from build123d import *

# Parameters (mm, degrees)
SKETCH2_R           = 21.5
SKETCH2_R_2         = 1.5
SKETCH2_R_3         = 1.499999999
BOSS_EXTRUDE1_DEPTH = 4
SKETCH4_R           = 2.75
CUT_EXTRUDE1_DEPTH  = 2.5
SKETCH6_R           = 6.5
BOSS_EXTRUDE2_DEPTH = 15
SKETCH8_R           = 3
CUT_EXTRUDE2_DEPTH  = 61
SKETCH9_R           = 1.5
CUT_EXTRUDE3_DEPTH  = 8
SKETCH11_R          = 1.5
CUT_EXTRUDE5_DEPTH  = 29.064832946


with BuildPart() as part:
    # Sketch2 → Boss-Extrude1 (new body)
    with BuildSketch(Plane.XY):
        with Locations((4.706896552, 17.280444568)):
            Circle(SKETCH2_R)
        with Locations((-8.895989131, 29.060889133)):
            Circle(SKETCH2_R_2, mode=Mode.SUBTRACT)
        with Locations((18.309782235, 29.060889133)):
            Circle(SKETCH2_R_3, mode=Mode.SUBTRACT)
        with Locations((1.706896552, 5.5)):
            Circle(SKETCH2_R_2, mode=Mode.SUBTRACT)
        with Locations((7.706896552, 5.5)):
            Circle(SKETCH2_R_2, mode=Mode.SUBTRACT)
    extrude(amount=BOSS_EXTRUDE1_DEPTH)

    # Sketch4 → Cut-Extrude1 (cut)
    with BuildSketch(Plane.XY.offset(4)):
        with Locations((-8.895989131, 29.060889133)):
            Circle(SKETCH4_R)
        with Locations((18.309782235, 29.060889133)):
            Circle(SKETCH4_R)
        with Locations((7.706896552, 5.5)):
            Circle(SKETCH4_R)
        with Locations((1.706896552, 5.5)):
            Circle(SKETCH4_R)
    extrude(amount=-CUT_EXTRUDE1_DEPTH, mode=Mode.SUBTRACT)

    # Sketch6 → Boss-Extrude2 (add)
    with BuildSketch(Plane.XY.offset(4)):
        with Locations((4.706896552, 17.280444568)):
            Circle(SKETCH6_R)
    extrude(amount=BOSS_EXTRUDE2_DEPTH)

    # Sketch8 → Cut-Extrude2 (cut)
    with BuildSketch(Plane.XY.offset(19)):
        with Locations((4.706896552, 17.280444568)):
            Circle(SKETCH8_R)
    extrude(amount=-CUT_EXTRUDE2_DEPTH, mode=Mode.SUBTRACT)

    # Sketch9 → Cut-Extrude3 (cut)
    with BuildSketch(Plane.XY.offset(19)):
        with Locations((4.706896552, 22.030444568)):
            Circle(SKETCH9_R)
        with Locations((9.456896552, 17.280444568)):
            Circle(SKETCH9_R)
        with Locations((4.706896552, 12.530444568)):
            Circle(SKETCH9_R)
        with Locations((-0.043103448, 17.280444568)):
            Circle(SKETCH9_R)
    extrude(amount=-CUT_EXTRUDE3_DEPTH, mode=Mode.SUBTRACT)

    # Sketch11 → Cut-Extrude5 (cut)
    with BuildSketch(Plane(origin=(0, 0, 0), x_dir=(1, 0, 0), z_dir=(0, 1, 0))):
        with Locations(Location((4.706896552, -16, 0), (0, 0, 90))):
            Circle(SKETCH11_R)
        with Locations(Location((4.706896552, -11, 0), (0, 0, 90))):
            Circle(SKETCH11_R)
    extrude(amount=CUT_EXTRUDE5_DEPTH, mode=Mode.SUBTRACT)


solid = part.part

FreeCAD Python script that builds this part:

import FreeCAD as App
import Part
import Sketcher

V = App.Vector

doc = App.newDocument("Part")
params = doc.addObject("Spreadsheet::Sheet", "Params")
for row, (alias, value) in enumerate([
    ("sketch1_diameter", "43 mm"),
    ("sketch1_diameter2", "3 mm"),
    ("pad1_length", "4 mm"),
    ("sketch2_diameter", "5.5 mm"),
    ("pocket1_length", "2.5 mm"),
    ("sketch3_diameter", "13 mm"),
    ("pad2_length", "15 mm"),
    ("sketch4_diameter", "6 mm"),
    ("pocket2_length", "61 mm"),
    ("sketch5_diameter", "3 mm"),
    ("pocket3_length", "8 mm"),
    ("sketch6_diameter", "3 mm"),
    ("pocket4_length", "29.064833 mm"),
], start=1):
    params.set(f"A{row}", alias)
    params.set(f"B{row}", "=" + value)
    params.setAlias(f"B{row}", alias)

body = doc.addObject("PartDesign::Body", "Body")

# Sketch on XY plane
sketch1 = body.newObject("Sketcher::SketchObject", "Sketch")
sketch1.AttachmentSupport = (doc.getObject("XY_Plane"), [""])
sketch1.MapMode = "FlatFace"
sketch1.addGeometry(Part.Circle(V(4.7, 17.3, 0), V(0, 0, 1), 21.5), False)
sketch1.addGeometry(Part.Circle(V(1.7, 5.5, 0), V(0, 0, 1), 1.5), False)
sketch1.addGeometry(Part.Circle(V(7.7, 5.5, 0), V(0, 0, 1), 1.5), False)
sketch1.addGeometry(Part.Circle(V(-8.9, 29.1, 0), V(0, 0, 1), 1.5), False)
sketch1.addGeometry(Part.Circle(V(18.3, 29.1, 0), V(0, 0, 1), 1.5), False)
sketch1.addConstraint(Sketcher.Constraint("Equal", 1, 2))
sketch1.addConstraint(Sketcher.Constraint("Equal", 2, 3))
sketch1.addConstraint(Sketcher.Constraint("Equal", 3, 4))
sketch1.addConstraint(Sketcher.Constraint("Horizontal", 1, 3, 2, 3))
sketch1.addConstraint(Sketcher.Constraint("Horizontal", 3, 3, 4, 3))
sketch1.addConstraint(Sketcher.Constraint("Diameter", 0, 43.0))
sketch1.addConstraint(Sketcher.Constraint("Diameter", 1, 3.0))
sketch1.addConstraint(Sketcher.Constraint("DistanceX", 1, 3, 0, 3, 3.0))
sketch1.addConstraint(Sketcher.Constraint("DistanceX", 1, 3, 2, 3, 6.0))
sketch1.addConstraint(Sketcher.Constraint("DistanceY", -1, 1, 1, 3, 5.5))
sketch1.addConstraint(Sketcher.Constraint("DistanceX", 3, 3, -1, 1, 8.895989))
sketch1.addConstraint(Sketcher.Constraint("DistanceY", -1, 1, 3, 3, 29.060889))
sketch1.addConstraint(Sketcher.Constraint("DistanceX", 3, 3, 4, 3, 27.205771))
sketch1.addConstraint(Sketcher.Constraint("DistanceX", -1, 1, 0, 3, 4.706897))
sketch1.addConstraint(Sketcher.Constraint("DistanceY", -1, 1, 0, 3, 17.280445))
sketch1.setExpression("Constraints[5]", "Params.sketch1_diameter")
sketch1.setExpression("Constraints[6]", "Params.sketch1_diameter2")
pad1 = body.newObject("PartDesign::Pad", "Pad")
pad1.Profile = sketch1
pad1.setExpression("Length", "Params.pad1_length")

# Sketch on XY plane
sketch2 = body.newObject("Sketcher::SketchObject", "Sketch001")
sketch2.AttachmentSupport = (doc.getObject("XY_Plane"), [""])
sketch2.MapMode = "FlatFace"
sketch2.AttachmentOffset = App.Placement(V(0, 0, 4), App.Rotation())
sketch2.addGeometry(Part.Circle(V(-8.9, 29.1, 0), V(0, 0, 1), 2.8), False)
sketch2.addGeometry(Part.Circle(V(18.3, 29.1, 0), V(0, 0, 1), 2.8), False)
sketch2.addGeometry(Part.Circle(V(7.7, 5.5, 0), V(0, 0, 1), 2.8), False)
sketch2.addGeometry(Part.Circle(V(1.7, 5.5, 0), V(0, 0, 1), 2.8), False)
sketch2.addConstraint(Sketcher.Constraint("Equal", 0, 1))
sketch2.addConstraint(Sketcher.Constraint("Equal", 1, 2))
sketch2.addConstraint(Sketcher.Constraint("Equal", 2, 3))
sketch2.addConstraint(Sketcher.Constraint("Horizontal", 0, 3, 1, 3))
sketch2.addConstraint(Sketcher.Constraint("Horizontal", 2, 3, 3, 3))
sketch2.addConstraint(Sketcher.Constraint("Diameter", 0, 5.5))
sketch2.addConstraint(Sketcher.Constraint("DistanceX", 3, 3, 2, 3, 6.0))
sketch2.addConstraint(Sketcher.Constraint("DistanceY", -1, 1, 2, 3, 5.5))
sketch2.addConstraint(Sketcher.Constraint("DistanceX", 0, 3, -1, 1, 8.895989))
sketch2.addConstraint(Sketcher.Constraint("DistanceY", -1, 1, 0, 3, 29.060889))
sketch2.addConstraint(Sketcher.Constraint("DistanceX", 0, 3, 1, 3, 27.205771))
sketch2.addConstraint(Sketcher.Constraint("DistanceX", -1, 1, 2, 3, 7.706897))
sketch2.setExpression("Constraints[5]", "Params.sketch2_diameter")
pocket1 = body.newObject("PartDesign::Pocket", "Pocket")
pocket1.Profile = sketch2
pocket1.setExpression("Length", "Params.pocket1_length")

# Sketch on XY plane
sketch3 = body.newObject("Sketcher::SketchObject", "Sketch002")
sketch3.AttachmentSupport = (doc.getObject("XY_Plane"), [""])
sketch3.MapMode = "FlatFace"
sketch3.AttachmentOffset = App.Placement(V(0, 0, 4), App.Rotation())
sketch3.addGeometry(Part.Circle(V(5, 17, 0), V(0, 0, 1), 6), False)
sketch3.addConstraint(Sketcher.Constraint("Diameter", 0, 13.0))
sketch3.addConstraint(Sketcher.Constraint("DistanceX", -1, 1, 0, 3, 4.706897))
sketch3.addConstraint(Sketcher.Constraint("DistanceY", -1, 1, 0, 3, 17.280445))
sketch3.setExpression("Constraints[0]", "Params.sketch3_diameter")
pad2 = body.newObject("PartDesign::Pad", "Pad001")
pad2.Profile = sketch3
pad2.setExpression("Length", "Params.pad2_length")

# Sketch on XY plane
sketch4 = body.newObject("Sketcher::SketchObject", "Sketch003")
sketch4.AttachmentSupport = (doc.getObject("XY_Plane"), [""])
sketch4.MapMode = "FlatFace"
sketch4.AttachmentOffset = App.Placement(V(0, 0, 19), App.Rotation())
sketch4.addGeometry(Part.Circle(V(4.7, 17.3, 0), V(0, 0, 1), 3), False)
sketch4.addConstraint(Sketcher.Constraint("Diameter", 0, 6.0))
sketch4.addConstraint(Sketcher.Constraint("DistanceX", -1, 1, 0, 3, 4.706897))
sketch4.addConstraint(Sketcher.Constraint("DistanceY", -1, 1, 0, 3, 17.280445))
sketch4.setExpression("Constraints[0]", "Params.sketch4_diameter")
pocket2 = body.newObject("PartDesign::Pocket", "Pocket001")
pocket2.Profile = sketch4
pocket2.setExpression("Length", "Params.pocket2_length")

# Sketch on XY plane
sketch5 = body.newObject("Sketcher::SketchObject", "Sketch004")
sketch5.AttachmentSupport = (doc.getObject("XY_Plane"), [""])
sketch5.MapMode = "FlatFace"
sketch5.AttachmentOffset = App.Placement(V(0, 0, 19), App.Rotation())
sketch5.addGeometry(Part.Circle(V(4.7, 22, 0), V(0, 0, 1), 1.5), False)
sketch5.addGeometry(Part.Circle(V(9.5, 17.3, 0), V(0, 0, 1), 1.5), False)
sketch5.addGeometry(Part.Circle(V(4.7, 12.5, 0), V(0, 0, 1), 1.5), False)
sketch5.addGeometry(Part.Circle(V(0, 17.3, 0), V(0, 0, 1), 1.5), False)
sketch5.addConstraint(Sketcher.Constraint("Equal", 0, 1))
sketch5.addConstraint(Sketcher.Constraint("Equal", 1, 2))
sketch5.addConstraint(Sketcher.Constraint("Equal", 2, 3))
sketch5.addConstraint(Sketcher.Constraint("Horizontal", 1, 3, 3, 3))
sketch5.addConstraint(Sketcher.Constraint("Vertical", 0, 3, 2, 3))
sketch5.addConstraint(Sketcher.Constraint("Diameter", 0, 3.0))
sketch5.addConstraint(Sketcher.Constraint("DistanceY", 2, 3, 0, 3, 9.5))
sketch5.addConstraint(Sketcher.Constraint("DistanceX", 3, 3, 1, 3, 9.5))
sketch5.addConstraint(Sketcher.Constraint("DistanceX", 0, 3, 1, 3, 4.75))
sketch5.addConstraint(Sketcher.Constraint("DistanceY", 1, 3, 0, 3, 4.75))
sketch5.addConstraint(Sketcher.Constraint("DistanceX", -1, 1, 0, 3, 4.706897))
sketch5.addConstraint(Sketcher.Constraint("DistanceY", -1, 1, 0, 3, 22.030445))
sketch5.setExpression("Constraints[5]", "Params.sketch5_diameter")
pocket3 = body.newObject("PartDesign::Pocket", "Pocket002")
pocket3.Profile = sketch5
pocket3.setExpression("Length", "Params.pocket3_length")

# Sketch on XZ plane
sketch6 = body.newObject("Sketcher::SketchObject", "Sketch005")
sketch6.AttachmentSupport = (doc.getObject("XZ_Plane"), [""])
sketch6.MapMode = "FlatFace"
sketch6.addGeometry(Part.Circle(V(4.7, 16, 0), V(0, 0, 1), 1.5), False)
sketch6.addGeometry(Part.Circle(V(4.7, 11, 0), V(0, 0, 1), 1.5), False)
sketch6.addConstraint(Sketcher.Constraint("Equal", 0, 1))
sketch6.addConstraint(Sketcher.Constraint("Vertical", 0, 3, 1, 3))
sketch6.addConstraint(Sketcher.Constraint("Diameter", 0, 3.0))
sketch6.addConstraint(Sketcher.Constraint("DistanceY", -1, 1, 0, 3, 16.0))
sketch6.addConstraint(Sketcher.Constraint("DistanceY", -1, 1, 1, 3, 11.0))
sketch6.addConstraint(Sketcher.Constraint("DistanceX", -1, 1, 0, 3, 4.706897))
sketch6.setExpression("Constraints[2]", "Params.sketch6_diameter")
pocket4 = body.newObject("PartDesign::Pocket", "Pocket003")
pocket4.Profile = sketch6
pocket4.setExpression("Length", "Params.pocket4_length")

doc.recompute()
